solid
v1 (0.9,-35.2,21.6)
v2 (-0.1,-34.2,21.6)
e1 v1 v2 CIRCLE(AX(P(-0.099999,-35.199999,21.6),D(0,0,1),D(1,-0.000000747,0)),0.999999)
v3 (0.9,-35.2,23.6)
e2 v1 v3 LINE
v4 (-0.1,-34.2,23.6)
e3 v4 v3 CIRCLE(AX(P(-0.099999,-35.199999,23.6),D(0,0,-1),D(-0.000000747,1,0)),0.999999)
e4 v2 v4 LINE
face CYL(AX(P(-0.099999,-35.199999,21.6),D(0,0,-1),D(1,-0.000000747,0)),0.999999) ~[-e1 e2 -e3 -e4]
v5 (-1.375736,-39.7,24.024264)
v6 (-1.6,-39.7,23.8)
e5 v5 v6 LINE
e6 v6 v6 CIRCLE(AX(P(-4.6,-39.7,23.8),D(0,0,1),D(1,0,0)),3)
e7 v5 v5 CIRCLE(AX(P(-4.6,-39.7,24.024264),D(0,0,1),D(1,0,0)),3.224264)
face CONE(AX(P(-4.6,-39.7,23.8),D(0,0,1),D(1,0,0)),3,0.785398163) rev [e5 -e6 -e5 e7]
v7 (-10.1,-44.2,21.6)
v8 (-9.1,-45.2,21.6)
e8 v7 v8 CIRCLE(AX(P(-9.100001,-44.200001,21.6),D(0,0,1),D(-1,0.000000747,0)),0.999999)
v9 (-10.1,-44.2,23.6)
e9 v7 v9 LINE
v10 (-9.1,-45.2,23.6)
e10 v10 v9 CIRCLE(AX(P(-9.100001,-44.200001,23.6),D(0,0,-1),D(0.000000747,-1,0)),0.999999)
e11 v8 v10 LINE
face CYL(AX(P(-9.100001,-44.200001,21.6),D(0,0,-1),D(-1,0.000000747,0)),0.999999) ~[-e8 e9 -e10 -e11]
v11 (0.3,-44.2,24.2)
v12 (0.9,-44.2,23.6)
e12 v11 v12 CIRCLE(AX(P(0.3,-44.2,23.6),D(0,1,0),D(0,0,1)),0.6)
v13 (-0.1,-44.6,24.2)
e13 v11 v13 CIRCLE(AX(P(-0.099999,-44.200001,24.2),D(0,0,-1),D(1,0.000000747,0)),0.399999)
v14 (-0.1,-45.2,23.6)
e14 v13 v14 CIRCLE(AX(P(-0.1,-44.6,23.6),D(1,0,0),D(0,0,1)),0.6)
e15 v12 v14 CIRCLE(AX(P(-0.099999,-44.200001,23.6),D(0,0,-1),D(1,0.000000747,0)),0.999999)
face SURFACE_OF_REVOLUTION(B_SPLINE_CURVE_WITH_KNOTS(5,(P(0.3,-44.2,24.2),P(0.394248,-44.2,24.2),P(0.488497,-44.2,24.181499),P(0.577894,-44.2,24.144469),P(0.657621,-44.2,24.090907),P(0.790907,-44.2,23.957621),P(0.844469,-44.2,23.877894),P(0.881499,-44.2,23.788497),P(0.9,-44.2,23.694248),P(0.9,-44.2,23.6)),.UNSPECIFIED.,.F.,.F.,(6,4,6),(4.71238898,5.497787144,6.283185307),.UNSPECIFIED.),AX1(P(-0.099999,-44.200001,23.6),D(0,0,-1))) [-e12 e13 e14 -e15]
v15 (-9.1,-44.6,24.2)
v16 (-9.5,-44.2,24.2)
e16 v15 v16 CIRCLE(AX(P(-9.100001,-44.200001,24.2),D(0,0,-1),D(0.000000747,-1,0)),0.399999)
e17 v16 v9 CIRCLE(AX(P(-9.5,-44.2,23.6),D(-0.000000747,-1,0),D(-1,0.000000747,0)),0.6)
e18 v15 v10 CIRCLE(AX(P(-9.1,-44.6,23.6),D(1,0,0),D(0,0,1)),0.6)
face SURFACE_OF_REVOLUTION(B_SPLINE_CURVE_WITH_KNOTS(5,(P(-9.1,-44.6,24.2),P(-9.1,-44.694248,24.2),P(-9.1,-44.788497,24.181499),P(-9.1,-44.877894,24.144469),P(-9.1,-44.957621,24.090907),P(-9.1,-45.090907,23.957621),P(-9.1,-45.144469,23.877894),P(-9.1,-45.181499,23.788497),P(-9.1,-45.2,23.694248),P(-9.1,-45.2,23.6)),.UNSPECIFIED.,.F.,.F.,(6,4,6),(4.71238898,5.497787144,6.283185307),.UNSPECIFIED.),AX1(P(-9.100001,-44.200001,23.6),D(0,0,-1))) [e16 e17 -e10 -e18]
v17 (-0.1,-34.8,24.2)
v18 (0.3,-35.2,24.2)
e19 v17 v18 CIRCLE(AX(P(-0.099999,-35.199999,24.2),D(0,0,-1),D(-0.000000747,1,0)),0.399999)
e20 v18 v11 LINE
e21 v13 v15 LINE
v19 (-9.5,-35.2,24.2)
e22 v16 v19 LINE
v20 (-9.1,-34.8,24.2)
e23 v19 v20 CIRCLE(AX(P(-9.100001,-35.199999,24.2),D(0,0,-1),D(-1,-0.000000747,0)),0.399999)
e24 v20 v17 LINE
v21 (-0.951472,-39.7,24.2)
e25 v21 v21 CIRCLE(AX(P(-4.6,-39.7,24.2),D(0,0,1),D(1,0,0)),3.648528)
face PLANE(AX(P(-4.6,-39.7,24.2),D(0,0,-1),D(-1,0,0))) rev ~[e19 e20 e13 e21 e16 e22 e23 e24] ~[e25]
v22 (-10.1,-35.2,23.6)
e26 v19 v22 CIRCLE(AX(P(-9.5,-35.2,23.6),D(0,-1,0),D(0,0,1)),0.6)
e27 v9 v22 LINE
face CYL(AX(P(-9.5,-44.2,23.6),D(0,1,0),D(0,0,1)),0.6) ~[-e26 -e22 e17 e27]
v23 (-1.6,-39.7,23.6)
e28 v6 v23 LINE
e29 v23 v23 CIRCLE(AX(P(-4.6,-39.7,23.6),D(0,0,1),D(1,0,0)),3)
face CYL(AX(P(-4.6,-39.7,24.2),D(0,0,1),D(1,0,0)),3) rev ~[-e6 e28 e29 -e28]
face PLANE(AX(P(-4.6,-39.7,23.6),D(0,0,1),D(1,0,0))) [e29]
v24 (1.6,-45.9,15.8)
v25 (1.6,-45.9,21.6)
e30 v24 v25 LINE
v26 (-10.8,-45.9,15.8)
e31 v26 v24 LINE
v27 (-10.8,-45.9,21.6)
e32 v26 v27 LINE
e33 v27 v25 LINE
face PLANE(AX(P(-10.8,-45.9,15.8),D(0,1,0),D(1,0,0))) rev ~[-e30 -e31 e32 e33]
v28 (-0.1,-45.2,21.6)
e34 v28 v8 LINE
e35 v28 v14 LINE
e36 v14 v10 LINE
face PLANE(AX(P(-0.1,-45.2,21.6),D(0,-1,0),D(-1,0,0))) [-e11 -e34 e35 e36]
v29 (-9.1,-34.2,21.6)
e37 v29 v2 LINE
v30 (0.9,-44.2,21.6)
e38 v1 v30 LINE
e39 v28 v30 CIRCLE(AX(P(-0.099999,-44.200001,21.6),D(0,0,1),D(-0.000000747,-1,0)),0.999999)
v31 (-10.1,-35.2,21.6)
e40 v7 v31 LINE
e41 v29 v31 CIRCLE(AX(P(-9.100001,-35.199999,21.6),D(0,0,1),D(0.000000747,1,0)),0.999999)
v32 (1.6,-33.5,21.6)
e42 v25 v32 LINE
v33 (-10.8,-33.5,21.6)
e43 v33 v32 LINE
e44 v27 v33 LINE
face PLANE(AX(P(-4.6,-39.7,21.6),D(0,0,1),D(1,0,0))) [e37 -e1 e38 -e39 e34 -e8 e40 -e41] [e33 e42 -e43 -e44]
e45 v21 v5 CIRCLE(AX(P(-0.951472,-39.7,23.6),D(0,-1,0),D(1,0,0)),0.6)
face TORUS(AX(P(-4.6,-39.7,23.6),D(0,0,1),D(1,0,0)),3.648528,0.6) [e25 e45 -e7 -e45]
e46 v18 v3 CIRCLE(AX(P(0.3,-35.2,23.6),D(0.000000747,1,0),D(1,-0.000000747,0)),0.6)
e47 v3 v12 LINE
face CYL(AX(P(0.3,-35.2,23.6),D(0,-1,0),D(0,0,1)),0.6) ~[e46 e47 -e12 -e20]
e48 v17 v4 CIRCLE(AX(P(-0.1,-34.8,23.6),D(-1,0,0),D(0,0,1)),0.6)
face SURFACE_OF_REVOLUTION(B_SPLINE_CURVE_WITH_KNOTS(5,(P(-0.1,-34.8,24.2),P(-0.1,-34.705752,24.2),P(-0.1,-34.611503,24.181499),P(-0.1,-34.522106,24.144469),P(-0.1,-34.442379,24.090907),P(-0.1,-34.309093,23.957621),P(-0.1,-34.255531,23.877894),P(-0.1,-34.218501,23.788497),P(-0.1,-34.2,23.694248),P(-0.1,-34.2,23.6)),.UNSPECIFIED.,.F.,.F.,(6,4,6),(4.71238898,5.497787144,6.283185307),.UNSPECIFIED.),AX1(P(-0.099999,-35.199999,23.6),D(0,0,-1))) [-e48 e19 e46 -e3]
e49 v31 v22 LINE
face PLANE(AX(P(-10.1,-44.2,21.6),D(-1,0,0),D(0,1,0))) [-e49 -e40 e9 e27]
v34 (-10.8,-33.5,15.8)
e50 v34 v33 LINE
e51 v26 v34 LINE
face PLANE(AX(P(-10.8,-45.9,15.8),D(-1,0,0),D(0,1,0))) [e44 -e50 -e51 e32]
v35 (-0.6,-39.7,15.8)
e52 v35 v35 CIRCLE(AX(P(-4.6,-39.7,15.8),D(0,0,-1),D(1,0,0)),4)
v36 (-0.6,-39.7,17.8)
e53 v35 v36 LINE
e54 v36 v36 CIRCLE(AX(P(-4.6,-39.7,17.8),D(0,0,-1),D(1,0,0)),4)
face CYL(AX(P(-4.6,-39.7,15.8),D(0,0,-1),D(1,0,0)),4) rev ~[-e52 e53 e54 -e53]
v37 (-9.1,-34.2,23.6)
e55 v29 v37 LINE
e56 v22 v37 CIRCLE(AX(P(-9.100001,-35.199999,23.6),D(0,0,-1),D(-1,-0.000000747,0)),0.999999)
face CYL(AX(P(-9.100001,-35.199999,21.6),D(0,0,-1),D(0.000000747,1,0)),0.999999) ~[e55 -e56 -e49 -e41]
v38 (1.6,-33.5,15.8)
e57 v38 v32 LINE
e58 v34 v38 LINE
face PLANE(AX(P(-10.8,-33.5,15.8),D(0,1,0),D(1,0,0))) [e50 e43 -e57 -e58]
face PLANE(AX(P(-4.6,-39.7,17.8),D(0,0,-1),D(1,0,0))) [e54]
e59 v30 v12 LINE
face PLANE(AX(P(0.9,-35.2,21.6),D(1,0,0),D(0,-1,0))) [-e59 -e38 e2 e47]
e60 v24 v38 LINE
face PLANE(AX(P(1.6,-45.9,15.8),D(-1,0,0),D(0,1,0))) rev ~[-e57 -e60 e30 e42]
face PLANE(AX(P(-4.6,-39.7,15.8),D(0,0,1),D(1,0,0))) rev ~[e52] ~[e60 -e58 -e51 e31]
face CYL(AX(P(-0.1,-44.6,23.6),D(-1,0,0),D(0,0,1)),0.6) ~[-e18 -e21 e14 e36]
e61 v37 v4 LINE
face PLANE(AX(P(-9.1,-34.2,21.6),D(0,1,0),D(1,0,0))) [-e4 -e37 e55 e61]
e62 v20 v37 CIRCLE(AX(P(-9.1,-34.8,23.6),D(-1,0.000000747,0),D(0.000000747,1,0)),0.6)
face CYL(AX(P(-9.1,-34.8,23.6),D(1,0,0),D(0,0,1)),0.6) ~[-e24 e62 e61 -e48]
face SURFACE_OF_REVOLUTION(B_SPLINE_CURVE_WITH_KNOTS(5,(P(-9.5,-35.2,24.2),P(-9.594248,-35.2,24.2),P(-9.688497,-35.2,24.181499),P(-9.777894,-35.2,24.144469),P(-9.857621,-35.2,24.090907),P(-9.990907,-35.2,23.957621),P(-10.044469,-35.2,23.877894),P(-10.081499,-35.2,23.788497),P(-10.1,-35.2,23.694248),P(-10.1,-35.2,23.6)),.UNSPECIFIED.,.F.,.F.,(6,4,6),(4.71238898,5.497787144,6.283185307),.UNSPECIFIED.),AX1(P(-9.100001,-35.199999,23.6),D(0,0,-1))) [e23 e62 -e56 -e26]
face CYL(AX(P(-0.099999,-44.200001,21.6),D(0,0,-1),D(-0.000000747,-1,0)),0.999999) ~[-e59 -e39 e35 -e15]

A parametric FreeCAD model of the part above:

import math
import FreeCAD as App
import Part
import Sketcher

V = App.Vector
Q = App.Units.Quantity


def edges_at(feature, points):
    """Names of the edges that pass closest to the given points."""
    edges = feature.Shape.Edges
    near = lambda p: min(range(len(edges)), key=lambda i: edges[i].distToShape(Part.Vertex(*p))[0])
    return sorted({f"Edge{near(p) + 1}" for p in points})


def add_polygon(sketch, points):
    """Adds a closed chain of lines whose ends are joined by coincident constraints."""
    first, n = sketch.GeometryCount, len(points)
    for a, b in zip(points, points[1:] + points[:1]):
        sketch.addGeometry(Part.LineSegment(App.Vector(*a, 0), App.Vector(*b, 0)), False)
    for i in range(n):
        sketch.addConstraint(Sketcher.Constraint("Coincident", first + i, 2, first + (i + 1) % n, 1))

doc = App.newDocument("Part")
body = doc.addObject("PartDesign::Body", "Body")

# Sketch on XY plane
sketch1 = body.newObject("Sketcher::SketchObject", "Sketch")
sketch1.AttachmentSupport = (doc.getObject("XY_Plane"), [""])
sketch1.MapMode = "FlatFace"
add_polygon(sketch1, [(-6, 6), (-6, -6), (6, -6), (6, 6)])  # lines 0-3
sketch1.addConstraint([
    Sketcher.Constraint("Vertical", 0),
    Sketcher.Constraint("Horizontal", 1),
    Sketcher.Constraint("Vertical", 2),
    Sketcher.Constraint("Horizontal", 3),
    Sketcher.Constraint("Symmetric", 0, 2, 2, 2, -1, 1),
    Sketcher.Constraint("Equal", 3, 0),
    Sketcher.Constraint("DistanceX", 1, 1, 1, 2, Q("12.4 mm")),
])
pad1 = body.newObject("PartDesign::Pad", "Pad")
pad1.Profile = sketch1
pad1.Length = 5.8

# Sketch on XY plane
sketch2 = body.newObject("Sketcher::SketchObject", "Sketch001")
sketch2.AttachmentSupport = (doc.getObject("XY_Plane"), [""])
sketch2.MapMode = "FlatFace"
sketch2.AttachmentOffset = App.Placement(V(0, 0, 5.8), App.Rotation())
sketch2.addGeometry([
    Part.LineSegment(V(4.5, 5.5, 0), V(-4.5, 5.5, 0)),  # 0
    Part.ArcOfCircle(Part.Circle(V(-4.5, 4.5, 0), V(0, 0, 1), 1), math.radians(90), math.radians(180)),  # 1
    Part.LineSegment(V(-5.5, 4.5, 0), V(-5.5, -4.5, 0)),  # 2
    Part.ArcOfCircle(Part.Circle(V(-4.5, -4.5, 0), V(0, 0, 1), 1), math.radians(180), math.radians(270)),  # 3
    Part.LineSegment(V(-4.5, -5.5, 0), V(4.5, -5.5, 0)),  # 4
    Part.ArcOfCircle(Part.Circle(V(4.5, -4.5, 0), V(0, 0, 1), 1), math.radians(-90), math.radians(0)),  # 5
    Part.LineSegment(V(5.5, -4.5, 0), V(5.5, 4.5, 0)),  # 6
    Part.ArcOfCircle(Part.Circle(V(4.5, 4.5, 0), V(0, 0, 1), 1), math.radians(0), math.radians(90)),  # 7
], False)
sketch2.addConstraint([
    Sketcher.Constraint("Tangent", 0, 2, 1, 1),
    Sketcher.Constraint("Tangent", 1, 2, 2, 1),
    Sketcher.Constraint("Tangent", 2, 2, 3, 1),
    Sketcher.Constraint("Tangent", 3, 2, 4, 1),
    Sketcher.Constraint("Tangent", 4, 2, 5, 1),
    Sketcher.Constraint("Tangent", 5, 2, 6, 1),
    Sketcher.Constraint("Tangent", 6, 2, 7, 1),
    Sketcher.Constraint("Tangent", 7, 2, 0, 1),
    Sketcher.Constraint("Horizontal", 0),
    Sketcher.Constraint("Vertical", 2),
    Sketcher.Constraint("Horizontal", 4),
    Sketcher.Constraint("Vertical", 6),
    Sketcher.Constraint("Equal", 1, 3),
    Sketcher.Constraint("Equal", 3, 5),
    Sketcher.Constraint("Equal", 5, 7),
    Sketcher.Constraint("Symmetric", 1, 3, 5, 3, -1, 1),
    Sketcher.Constraint("Equal", 4, 2),
    Sketcher.Constraint("Radius", 1, Q("0.999999 mm")),
    Sketcher.Constraint("DistanceX", 0, 2, 0, 1, Q("9 mm")),
])
pad2 = body.newObject("PartDesign::Pad", "Pad001")
pad2.Profile = sketch2
pad2.Length = 2.6

# Sketch on XY plane
sketch3 = body.newObject("Sketcher::SketchObject", "Sketch002")
sketch3.AttachmentSupport = (doc.getObject("XY_Plane"), [""])
sketch3.MapMode = "FlatFace"
sketch3.AttachmentOffset = App.Placement(V(0, 0, 8.4), App.Rotation())
sketch3.addGeometry(Part.Circle(V(0, 0, 0), V(0, 0, 1), 3), False)
sketch3.addConstraint([
    Sketcher.Constraint("Coincident", 0, 3, -1, 1),
    Sketcher.Constraint("Diameter", 0, Q("6 mm")),
])
pocket1 = body.newObject("PartDesign::Pocket", "Pocket")
pocket1.Profile = sketch3
pocket1.Length = 0.6

# Sketch on XY plane
sketch4 = body.newObject("Sketcher::SketchObject", "Sketch003")
sketch4.AttachmentSupport = (doc.getObject("XY_Plane"), [""])
sketch4.MapMode = "FlatFace"
sketch4.addGeometry(Part.Circle(V(0, 0, 0), V(0, 0, 1), 4), False)
sketch4.addConstraint([
    Sketcher.Constraint("Coincident", 0, 3, -1, 1),
    Sketcher.Constraint("Diameter", 0, Q("8 mm")),
])
pocket2 = body.newObject("PartDesign::Pocket", "Pocket001")
pocket2.Profile = sketch4
pocket2.Length = 2
pocket2.Reversed = True
doc.recompute()

chamfer = body.newObject("PartDesign::Chamfer", "Chamfer")
chamfer.Base = (pocket2, edges_at(pocket2, [(-3, 0, 8.4)]))
chamfer.Size = 0.4
doc.recompute()

fillet = body.newObject("PartDesign::Fillet", "Fillet")
fillet.Base = (chamfer, edges_at(chamfer, [
    (0, -5.5, 8.4),
    (-5.207, -5.207, 8.4),
    (-5.5, 0, 8.4),
    (-5.207, 5.207, 8.4),
    (0, 5.5, 8.4),
    (-3.4, 0, 8.4),
    (5.207, -5.207, 8.4),
    (5.207, 5.207, 8.4),
    (5.5, 0, 8.4),
]))
fillet.Radius = 0.6
body2 = doc.addObject("PartDesign::Body", "Body001")
doc.recompute()

body.Placement = App.Placement(V(-4.6, -39.7, 15.8), App.Rotation(V(0, 0, 1), 0))
boolean = body2.newObject("PartDesign::Boolean", "Boolean")
boolean.Type = "Fuse"
boolean.addObjects([body])

doc.recompute()
